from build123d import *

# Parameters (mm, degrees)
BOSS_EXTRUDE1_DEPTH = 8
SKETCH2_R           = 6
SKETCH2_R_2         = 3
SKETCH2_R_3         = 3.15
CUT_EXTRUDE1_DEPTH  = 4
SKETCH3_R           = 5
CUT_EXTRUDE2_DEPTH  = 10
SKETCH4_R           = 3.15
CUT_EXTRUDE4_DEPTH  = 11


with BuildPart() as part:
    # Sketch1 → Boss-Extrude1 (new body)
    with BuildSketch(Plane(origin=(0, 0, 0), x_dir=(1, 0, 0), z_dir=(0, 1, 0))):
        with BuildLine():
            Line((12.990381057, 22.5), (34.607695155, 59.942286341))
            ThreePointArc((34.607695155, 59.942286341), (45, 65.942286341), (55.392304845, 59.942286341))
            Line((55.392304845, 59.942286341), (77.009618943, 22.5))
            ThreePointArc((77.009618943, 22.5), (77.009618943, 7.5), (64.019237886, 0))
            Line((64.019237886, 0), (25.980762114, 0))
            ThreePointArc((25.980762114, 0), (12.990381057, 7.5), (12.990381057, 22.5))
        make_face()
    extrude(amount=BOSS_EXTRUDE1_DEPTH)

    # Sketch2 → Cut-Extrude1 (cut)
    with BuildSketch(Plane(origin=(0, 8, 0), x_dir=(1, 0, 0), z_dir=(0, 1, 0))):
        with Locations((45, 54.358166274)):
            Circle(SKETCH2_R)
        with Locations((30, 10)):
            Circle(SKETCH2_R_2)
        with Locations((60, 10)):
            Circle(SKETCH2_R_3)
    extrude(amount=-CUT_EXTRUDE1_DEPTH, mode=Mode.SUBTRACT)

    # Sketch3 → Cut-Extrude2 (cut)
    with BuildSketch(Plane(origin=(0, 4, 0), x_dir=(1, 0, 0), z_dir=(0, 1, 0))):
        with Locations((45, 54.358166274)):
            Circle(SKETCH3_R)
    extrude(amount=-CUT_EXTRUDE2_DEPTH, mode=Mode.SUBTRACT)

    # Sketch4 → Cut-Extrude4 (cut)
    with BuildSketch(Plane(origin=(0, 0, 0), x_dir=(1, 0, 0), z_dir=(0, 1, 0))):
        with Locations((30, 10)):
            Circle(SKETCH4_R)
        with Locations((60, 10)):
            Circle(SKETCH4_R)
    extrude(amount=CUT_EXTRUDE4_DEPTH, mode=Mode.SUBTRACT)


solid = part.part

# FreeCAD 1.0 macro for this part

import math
import FreeCAD as App
import Part
import Sketcher
Q = App.Units.Quantity

doc = App.newDocument("Part")
body = doc.addObject("PartDesign::Body", "Body")

# Sketch on XZ plane
sketch1 = body.newObject("Sketcher::SketchObject", "Sketch")
sketch1.AttachmentSupport = (doc.getObject("XZ_Plane"), [""])
sketch1.MapMode = "FlatFace"
sketch1.addGeometry([
    Part.LineSegment(App.Vector(34.607695, -59.942286, 0), App.Vector(12.990381, -22.5, 0)),  # 0
    Part.ArcOfCircle(Part.Circle(App.Vector(25.980762, -15, 0), App.Vector(0, 0, 1), 15), math.radians(90), math.radians(210)),  # 1
    Part.LineSegment(App.Vector(25.980762, 0, 0), App.Vector(64.019238, 0, 0)),  # 2
    Part.ArcOfCircle(Part.Circle(App.Vector(64.019238, -15, 0), App.Vector(0, 0, 1), 15), math.radians(-30), math.radians(90)),  # 3
    Part.LineSegment(App.Vector(77.009619, -22.5, 0), App.Vector(55.392305, -59.942286, 0)),  # 4
    Part.ArcOfCircle(Part.Circle(App.Vector(45, -53.942286, 0), App.Vector(0, 0, 1), 12), math.radians(-150), math.radians(-30)),  # 5
], False)
sketch1.addConstraint([
    Sketcher.Constraint("Tangent", 0, 2, 1, 2),
    Sketcher.Constraint("Tangent", 1, 1, 2, 1),
    Sketcher.Constraint("Tangent", 2, 2, 3, 2),
    Sketcher.Constraint("Tangent", 3, 1, 4, 1),
    Sketcher.Constraint("Tangent", 4, 2, 5, 2),
    Sketcher.Constraint("Tangent", 5, 1, 0, 1),
    Sketcher.Constraint("Horizontal", 2),
    Sketcher.Constraint("Equal", 1, 3),
    Sketcher.Constraint("PointOnObject", 1, 1, -1),
    Sketcher.Constraint("Horizontal", 0, 2, 3, 1),
    Sketcher.Constraint("Radius", 1, Q("15 mm")),
    Sketcher.Constraint("Radius", 5, Q("12 mm")),
    Sketcher.Constraint("Angle", 0, Q("120 deg")),
    Sketcher.Constraint("DistanceX", -1, 1, 5, 3, Q("45 mm")),
    Sketcher.Constraint("Distance", 0, Q("43.234628 mm")),
])
pad1 = body.newObject("PartDesign::Pad", "Pad")
pad1.Profile = sketch1
pad1.Length = 8
pad1.Reversed = True

# Sketch on XZ plane
sketch2 = body.newObject("Sketcher::SketchObject", "Sketch001")
sketch2.AttachmentSupport = (doc.getObject("XZ_Plane"), [""])
sketch2.MapMode = "FlatFace"
sketch2.AttachmentOffset = App.Placement(App.Vector(0, 0, -8), App.Rotation())
sketch2.addGeometry([
    Part.Circle(App.Vector(45, -54.358166, 0), App.Vector(0, 0, 1), 6),
    Part.Circle(App.Vector(30, -10, 0), App.Vector(0, 0, 1), 3),
    Part.Circle(App.Vector(60, -10, 0), App.Vector(0, 0, 1), 3.15),
], False)
sketch2.addConstraint([
    Sketcher.Constraint("Horizontal", 1, 3, 2, 3),
    Sketcher.Constraint("Diameter", 0, Q("12 mm")),
    Sketcher.Constraint("Diameter", 1, Q("6 mm")),
    Sketcher.Constraint("Diameter", 2, Q("6.3 mm")),
    Sketcher.Constraint("DistanceX", -1, 1, 0, 3, Q("45 mm")),
    Sketcher.Constraint("DistanceX", -1, 1, 1, 3, Q("30 mm")),
    Sketcher.Constraint("DistanceY", 1, 3, -1, 1, Q("10 mm")),
    Sketcher.Constraint("DistanceX", -1, 1, 2, 3, Q("60 mm")),
    Sketcher.Constraint("DistanceY", 0, 3, -1, 1, Q("54.358166 mm")),
])
pocket1 = body.newObject("PartDesign::Pocket", "Pocket")
pocket1.Profile = sketch2
pocket1.Length = 4
pocket1.Reversed = True

# Sketch on XZ plane
sketch3 = body.newObject("Sketcher::SketchObject", "Sketch002")
sketch3.AttachmentSupport = (doc.getObject("XZ_Plane"), [""])
sketch3.MapMode = "FlatFace"
sketch3.AttachmentOffset = App.Placement(App.Vector(0, 0, -4), App.Rotation())
sketch3.addGeometry(Part.Circle(App.Vector(45, -54.358166, 0), App.Vector(0, 0, 1), 5), False)
sketch3.addConstraint([
    Sketcher.Constraint("Diameter", 0, Q("10 mm")),
    Sketcher.Constraint("DistanceX", -1, 1, 0, 3, Q("45 mm")),
    Sketcher.Constraint("DistanceY", 0, 3, -1, 1, Q("54.358166 mm")),
])
pocket2 = body.newObject("PartDesign::Pocket", "Pocket001")
pocket2.Profile = sketch3
pocket2.Length = 10
pocket2.Reversed = True

# Sketch on XZ plane
sketch4 = body.newObject("Sketcher::SketchObject", "Sketch003")
sketch4.AttachmentSupport = (doc.getObject("XZ_Plane"), [""])
sketch4.MapMode = "FlatFace"
sketch4.addGeometry([
    Part.Circle(App.Vector(30, -10, 0), App.Vector(0, 0, 1), 3.15),
    Part.Circle(App.Vector(60, -10, 0), App.Vector(0, 0, 1), 3.15),
], False)
sketch4.addConstraint([
    Sketcher.Constraint("Equal", 0, 1),
    Sketcher.Constraint("Horizontal", 0, 3, 1, 3),
    Sketcher.Constraint("Diameter", 0, Q("6.3 mm")),
    Sketcher.Constraint("DistanceX", -1, 1, 0, 3, Q("30 mm")),
    Sketcher.Constraint("DistanceY", 0, 3, -1, 1, Q("10 mm")),
    Sketcher.Constraint("DistanceX", -1, 1, 1, 3, Q("60 mm")),
])
pocket3 = body.newObject("PartDesign::Pocket", "Pocket002")
pocket3.Profile = sketch4
pocket3.Length = 11

doc.recompute()
